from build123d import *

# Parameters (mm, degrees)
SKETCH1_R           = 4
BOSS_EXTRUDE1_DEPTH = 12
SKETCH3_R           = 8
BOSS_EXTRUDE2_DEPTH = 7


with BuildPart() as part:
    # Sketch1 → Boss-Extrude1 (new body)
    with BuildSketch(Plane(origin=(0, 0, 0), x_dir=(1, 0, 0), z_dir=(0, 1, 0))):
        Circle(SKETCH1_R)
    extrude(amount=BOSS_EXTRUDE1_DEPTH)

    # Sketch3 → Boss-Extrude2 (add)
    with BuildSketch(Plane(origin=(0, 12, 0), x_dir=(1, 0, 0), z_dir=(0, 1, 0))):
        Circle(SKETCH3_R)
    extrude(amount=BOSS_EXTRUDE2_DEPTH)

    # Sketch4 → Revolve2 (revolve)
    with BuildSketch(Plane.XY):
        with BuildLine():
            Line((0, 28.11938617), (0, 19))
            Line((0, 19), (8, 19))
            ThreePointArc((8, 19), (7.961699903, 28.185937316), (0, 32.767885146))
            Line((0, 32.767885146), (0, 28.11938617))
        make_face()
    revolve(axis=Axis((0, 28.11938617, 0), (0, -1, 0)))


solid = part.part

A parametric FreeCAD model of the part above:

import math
import FreeCAD as App
import Part
import Sketcher

V = App.Vector
Q = App.Units.Quantity

doc = App.newDocument("Part")
body = doc.addObject("PartDesign::Body", "Body")

# Sketch on XZ plane
sketch1 = doc.addObject("Sketcher::SketchObject", "Sketch")
body.addObject(sketch1)
sketch1.AttachmentSupport = (doc.XZ_Plane, [""])
sketch1.MapMode = "FlatFace"
sketch1.addGeometry(Part.Circle(V(0, 0, 0), V(0, 0, 1), 4), False)
sketch1.addConstraint([
    Sketcher.Constraint("Coincident", 0, 3, -1, 1),
    Sketcher.Constraint("Diameter", 0, Q("8 mm")),
])
pad1 = doc.addObject("PartDesign::Pad", "Pad")
body.addObject(pad1)
pad1.Profile = sketch1
pad1.Length = 12
pad1.Reversed = True

# Sketch on XZ plane
sketch2 = doc.addObject("Sketcher::SketchObject", "Sketch001")
body.addObject(sketch2)
sketch2.AttachmentSupport = (doc.XZ_Plane, [""])
sketch2.MapMode = "FlatFace"
sketch2.AttachmentOffset = App.Placement(V(0, 0, -12), App.Rotation())
sketch2.addGeometry(Part.Circle(V(0, 0, 0), V(0, 0, 1), 8), False)
sketch2.addConstraint([
    Sketcher.Constraint("Coincident", 0, 3, -1, 1),
    Sketcher.Constraint("Diameter", 0, Q("16 mm")),
])
pad2 = doc.addObject("PartDesign::Pad", "Pad001")
body.addObject(pad2)
pad2.Profile = sketch2
pad2.Length = 7
pad2.Reversed = True

# Sketch on XY plane
sketch3 = doc.addObject("Sketcher::SketchObject", "Sketch002")
body.addObject(sketch3)
sketch3.AttachmentSupport = (doc.XY_Plane, [""])
sketch3.MapMode = "FlatFace"
sketch3.addGeometry([
    Part.LineSegment(V(0, 19, 0), V(8, 19, 0)),
    Part.ArcOfCircle(Part.Circle(V(0, 24, 0), V(0, 0, 1), 9), math.radians(-30), math.radians(90)),
    Part.LineSegment(V(0, 33, 0), V(0, 19, 0)),
], False)
sketch3.addConstraint([
    Sketcher.Constraint("Coincident", 0, 2, 1, 1),
    Sketcher.Constraint("Coincident", 1, 2, 2, 1),
    Sketcher.Constraint("Coincident", 2, 2, 0, 1),
    Sketcher.Constraint("Horizontal", 0),
    Sketcher.Constraint("Vertical", 2),
    Sketcher.Constraint("PointOnObject", 1, 3, -2),
    Sketcher.Constraint("PointOnObject", 1, 2, -2),
    Sketcher.Constraint("DistanceX", 0, 1, 0, 2, Q("8 mm")),
    Sketcher.Constraint("DistanceY", -1, 1, 0, 2, Q("19 mm")),
    Sketcher.Constraint("Radius", 1, Q("9.208192 mm")),
])
revolution = doc.addObject("PartDesign::Revolution", "Revolution")
body.addObject(revolution)
revolution.Profile = sketch3
revolution.ReferenceAxis = (sketch3, ["V_Axis"])
revolution.Angle = 360

doc.recompute()
